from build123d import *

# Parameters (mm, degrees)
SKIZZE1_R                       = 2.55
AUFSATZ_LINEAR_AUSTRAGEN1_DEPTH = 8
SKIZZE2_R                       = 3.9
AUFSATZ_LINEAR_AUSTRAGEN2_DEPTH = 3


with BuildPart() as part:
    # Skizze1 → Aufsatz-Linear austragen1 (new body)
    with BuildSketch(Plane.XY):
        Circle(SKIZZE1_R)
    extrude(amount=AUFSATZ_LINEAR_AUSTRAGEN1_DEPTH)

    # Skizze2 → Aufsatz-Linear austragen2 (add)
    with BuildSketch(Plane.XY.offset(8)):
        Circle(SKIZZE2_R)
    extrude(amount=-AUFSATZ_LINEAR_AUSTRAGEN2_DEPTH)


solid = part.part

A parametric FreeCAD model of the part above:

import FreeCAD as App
import Part
import Sketcher
from FreeCAD import Vector
Q = App.Units.Quantity

doc = App.newDocument("Part")
body = doc.addObject("PartDesign::Body", "Body")

# Sketch on XY plane
sketch1 = body.newObject("Sketcher::SketchObject", "Sketch")
sketch1.AttachmentSupport = (doc.getObject("XY_Plane"), [""])
sketch1.MapMode = "FlatFace"
sketch1.addGeometry(Part.Circle(Vector(0, 0, 0), Vector(0, 0, 1), 2.5), False)
sketch1.addConstraint(Sketcher.Constraint("Coincident", 0, 3, -1, 1))
sketch1.addConstraint(Sketcher.Constraint("Diameter", 0, Q("5.1 mm")))
pad1 = body.newObject("PartDesign::Pad", "Pad")
pad1.Profile = sketch1
pad1.Length = 8

# Sketch on XY plane
sketch2 = body.newObject("Sketcher::SketchObject", "Sketch001")
sketch2.AttachmentSupport = (doc.getObject("XY_Plane"), [""])
sketch2.MapMode = "FlatFace"
sketch2.AttachmentOffset = App.Placement(Vector(0, 0, 8), App.Rotation())
sketch2.addGeometry(Part.Circle(Vector(0, 0, 0), Vector(0, 0, 1), 3.9), False)
sketch2.addConstraint(Sketcher.Constraint("Coincident", 0, 3, -1, 1))
sketch2.addConstraint(Sketcher.Constraint("Diameter", 0, Q("7.8 mm")))
pad2 = body.newObject("PartDesign::Pad", "Pad001")
pad2.Profile = sketch2
pad2.Length = 3
pad2.Reversed = True

doc.recompute()
